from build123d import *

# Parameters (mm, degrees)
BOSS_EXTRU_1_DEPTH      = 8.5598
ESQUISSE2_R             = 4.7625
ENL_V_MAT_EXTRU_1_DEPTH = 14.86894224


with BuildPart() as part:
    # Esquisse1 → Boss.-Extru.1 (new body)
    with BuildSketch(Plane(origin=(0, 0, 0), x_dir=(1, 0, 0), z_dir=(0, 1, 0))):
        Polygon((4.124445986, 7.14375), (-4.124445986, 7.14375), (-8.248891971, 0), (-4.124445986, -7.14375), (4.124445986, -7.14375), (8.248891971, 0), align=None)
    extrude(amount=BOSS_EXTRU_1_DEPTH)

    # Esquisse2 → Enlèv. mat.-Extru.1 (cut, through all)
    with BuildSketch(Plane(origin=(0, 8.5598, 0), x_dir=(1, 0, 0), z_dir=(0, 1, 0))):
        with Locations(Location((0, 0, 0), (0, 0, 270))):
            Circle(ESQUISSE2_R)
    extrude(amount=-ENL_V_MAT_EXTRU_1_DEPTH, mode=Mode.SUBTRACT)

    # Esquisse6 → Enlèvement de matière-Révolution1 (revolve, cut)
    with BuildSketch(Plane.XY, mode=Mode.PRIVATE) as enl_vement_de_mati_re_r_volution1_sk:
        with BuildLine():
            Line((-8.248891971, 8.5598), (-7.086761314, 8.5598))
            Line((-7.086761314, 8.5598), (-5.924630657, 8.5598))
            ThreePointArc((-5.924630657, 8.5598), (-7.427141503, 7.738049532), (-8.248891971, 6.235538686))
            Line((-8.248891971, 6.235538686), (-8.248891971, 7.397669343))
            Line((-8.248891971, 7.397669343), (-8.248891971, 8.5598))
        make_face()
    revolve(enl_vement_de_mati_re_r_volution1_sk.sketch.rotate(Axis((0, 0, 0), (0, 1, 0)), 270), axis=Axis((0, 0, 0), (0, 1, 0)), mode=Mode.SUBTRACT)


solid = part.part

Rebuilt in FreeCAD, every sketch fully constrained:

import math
import FreeCAD as App
import Part
import Sketcher

V = App.Vector
Q = App.Units.Quantity

doc = App.newDocument("Part")
body = doc.addObject("PartDesign::Body", "Body")

# Sketch on XZ plane
sketch1 = body.newObject("Sketcher::SketchObject", "Sketch")
sketch1.AttachmentSupport = (doc.getObject("XZ_Plane"), [""])
sketch1.MapMode = "FlatFace"
sketch1.addGeometry([
    Part.LineSegment(V(4, -7, 0), V(-4, -7, 0)),  # 0
    Part.LineSegment(V(-4, -7, 0), V(-8, 0, 0)),  # 1
    Part.LineSegment(V(-8, 0, 0), V(-4, 7, 0)),  # 2
    Part.LineSegment(V(-4, 7, 0), V(4, 7, 0)),  # 3
    Part.LineSegment(V(4, 7, 0), V(8, 0, 0)),  # 4
    Part.LineSegment(V(8, 0, 0), V(4, -7, 0)),  # 5
], False)
sketch1.addConstraint([
    Sketcher.Constraint("Coincident", 0, 2, 1, 1),
    Sketcher.Constraint("Coincident", 1, 2, 2, 1),
    Sketcher.Constraint("Coincident", 2, 2, 3, 1),
    Sketcher.Constraint("Coincident", 3, 2, 4, 1),
    Sketcher.Constraint("Coincident", 4, 2, 5, 1),
    Sketcher.Constraint("Coincident", 5, 2, 0, 1),
    Sketcher.Constraint("Horizontal", 0),
    Sketcher.Constraint("Horizontal", 3),
    Sketcher.Constraint("Symmetric", 0, 2, 3, 2, -1, 1),
    Sketcher.Constraint("Symmetric", 1, 2, 4, 2, -1, 1),
    Sketcher.Constraint("PointOnObject", 1, 2, -1),
    Sketcher.Constraint("Parallel", 2, 5),
    Sketcher.Constraint("Vertical", 0, 2, 2, 2),
    Sketcher.Constraint("Angle", 1, Q("120 deg")),
    Sketcher.Constraint("DistanceY", 0, 2, -1, 1, Q("0.28125 in")),
    Sketcher.Constraint("DistanceX", 0, 2, 0, 1, Q("8.248892 mm")),
])
pad1 = body.newObject("PartDesign::Pad", "Pad")
pad1.Profile = sketch1
pad1.Length = Q("0.337 in")
pad1.Reversed = True

# Sketch on XZ plane
sketch2 = body.newObject("Sketcher::SketchObject", "Sketch001")
sketch2.AttachmentSupport = (doc.getObject("XZ_Plane"), [""])
sketch2.MapMode = "FlatFace"
sketch2.AttachmentOffset = App.Placement(V(0, 0, -0.337 * 25.4), App.Rotation())
sketch2.addGeometry(Part.Circle(V(0, 0, 0), V(0, 0, 1), 4.8), False)
sketch2.addConstraint([
    Sketcher.Constraint("Coincident", 0, 3, -1, 1),
    Sketcher.Constraint("Diameter", 0, Q("0.375 in")),
])
pocket1 = body.newObject("PartDesign::Pocket", "Pocket")
pocket1.Profile = sketch2
pocket1.Type = "ThroughAll"
pocket1.Reversed = True

# Sketch on XY plane
sketch3 = body.newObject("Sketcher::SketchObject", "Sketch002")
sketch3.AttachmentSupport = (doc.getObject("XY_Plane"), [""])
sketch3.MapMode = "FlatFace"
sketch3.addGeometry([
    Part.LineSegment(V(-5.9, 8.6, 0), V(-8.2, 8.6, 0)),
    Part.LineSegment(V(-8.2, 8.6, 0), V(-8.2, 6.2, 0)),
    Part.ArcOfCircle(Part.Circle(V(-5.3, 5.6, 0), V(0, 0, 1), 3), math.radians(102), math.radians(168)),
], False)
sketch3.addConstraint([
    Sketcher.Constraint("Coincident", 0, 2, 1, 1),
    Sketcher.Constraint("Coincident", 1, 2, 2, 2),
    Sketcher.Constraint("Coincident", 2, 1, 0, 1),
    Sketcher.Constraint("Horizontal", 0),
    Sketcher.Constraint("Vertical", 1),
    Sketcher.Constraint("Equal", 0, 1),
    Sketcher.Constraint("DistanceY", -1, 1, 0, 2, Q("0.337 in")),
    Sketcher.Constraint("Radius", 2, Q("3.046317 mm")),
    Sketcher.Constraint("DistanceX", 0, 2, 0, 1, Q("2.324261 mm")),
    Sketcher.Constraint("DistanceX", 2, 3, -1, 1, Q("5.27307 mm")),
])
groove = body.newObject("PartDesign::Groove", "Groove")
groove.Profile = sketch3
groove.ReferenceAxis = (sketch3, ["V_Axis"])
groove.Angle = 360

doc.recompute()
